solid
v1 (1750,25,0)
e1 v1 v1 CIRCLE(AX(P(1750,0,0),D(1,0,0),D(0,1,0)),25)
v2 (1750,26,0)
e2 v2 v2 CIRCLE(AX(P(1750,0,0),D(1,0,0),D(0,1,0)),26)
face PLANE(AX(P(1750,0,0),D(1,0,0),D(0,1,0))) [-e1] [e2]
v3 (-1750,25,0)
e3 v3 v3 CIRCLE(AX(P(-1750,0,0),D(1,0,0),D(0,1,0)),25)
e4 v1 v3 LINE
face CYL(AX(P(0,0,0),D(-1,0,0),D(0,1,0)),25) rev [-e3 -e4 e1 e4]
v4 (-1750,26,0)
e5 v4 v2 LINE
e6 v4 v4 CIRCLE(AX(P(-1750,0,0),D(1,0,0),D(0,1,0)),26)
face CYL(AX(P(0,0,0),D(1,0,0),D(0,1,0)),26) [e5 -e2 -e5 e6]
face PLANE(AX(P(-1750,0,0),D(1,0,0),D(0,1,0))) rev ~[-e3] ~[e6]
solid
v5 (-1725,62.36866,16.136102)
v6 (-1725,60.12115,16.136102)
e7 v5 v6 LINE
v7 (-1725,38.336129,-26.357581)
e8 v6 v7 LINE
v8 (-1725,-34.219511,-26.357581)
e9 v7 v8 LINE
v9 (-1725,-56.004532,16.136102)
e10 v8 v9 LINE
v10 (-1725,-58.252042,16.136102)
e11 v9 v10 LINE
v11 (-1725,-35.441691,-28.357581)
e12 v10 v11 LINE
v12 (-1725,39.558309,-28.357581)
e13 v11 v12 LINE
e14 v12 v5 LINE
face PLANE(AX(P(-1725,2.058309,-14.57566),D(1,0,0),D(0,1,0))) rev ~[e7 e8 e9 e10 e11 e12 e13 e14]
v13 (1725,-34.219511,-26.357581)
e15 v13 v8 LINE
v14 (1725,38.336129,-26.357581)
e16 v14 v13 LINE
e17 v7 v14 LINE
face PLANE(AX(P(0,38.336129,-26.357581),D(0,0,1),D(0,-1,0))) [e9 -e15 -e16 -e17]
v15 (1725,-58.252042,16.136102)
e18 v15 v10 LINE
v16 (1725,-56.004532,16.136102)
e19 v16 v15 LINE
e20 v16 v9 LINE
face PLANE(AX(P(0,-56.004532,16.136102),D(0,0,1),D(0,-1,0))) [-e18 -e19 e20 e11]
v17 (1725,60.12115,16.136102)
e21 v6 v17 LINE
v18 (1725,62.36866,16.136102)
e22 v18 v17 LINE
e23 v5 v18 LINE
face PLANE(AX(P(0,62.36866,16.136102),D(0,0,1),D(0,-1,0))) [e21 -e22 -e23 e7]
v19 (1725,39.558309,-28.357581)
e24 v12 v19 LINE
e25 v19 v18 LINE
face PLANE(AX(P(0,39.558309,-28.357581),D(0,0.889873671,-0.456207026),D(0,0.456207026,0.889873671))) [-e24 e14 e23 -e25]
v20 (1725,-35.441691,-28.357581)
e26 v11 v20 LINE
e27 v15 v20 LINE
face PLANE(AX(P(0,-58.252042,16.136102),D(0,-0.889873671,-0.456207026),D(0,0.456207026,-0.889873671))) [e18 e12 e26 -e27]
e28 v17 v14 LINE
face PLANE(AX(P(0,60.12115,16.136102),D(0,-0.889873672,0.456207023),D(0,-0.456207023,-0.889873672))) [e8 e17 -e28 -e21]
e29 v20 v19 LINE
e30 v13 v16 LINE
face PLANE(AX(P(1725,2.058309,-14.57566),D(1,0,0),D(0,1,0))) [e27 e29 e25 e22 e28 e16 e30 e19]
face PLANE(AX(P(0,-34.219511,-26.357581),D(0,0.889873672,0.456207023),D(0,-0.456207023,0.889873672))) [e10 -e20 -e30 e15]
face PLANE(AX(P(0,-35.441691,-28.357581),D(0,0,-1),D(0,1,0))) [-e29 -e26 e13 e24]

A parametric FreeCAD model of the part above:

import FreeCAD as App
import Part
import Sketcher

V = App.Vector

doc = App.newDocument("Part")
body = doc.addObject("PartDesign::Body", "Body")

# Sketch on YZ plane
sketch1 = doc.addObject("Sketcher::SketchObject", "Sketch")
body.addObject(sketch1)
sketch1.AttachmentSupport = (doc.YZ_Plane, [""])
sketch1.MapMode = "FlatFace"
sketch1.addGeometry([
    Part.LineSegment(V(-58.252042, 16.136102, 0), V(-35.441691, -28.357581, 0)),  # 0
    Part.LineSegment(V(-35.441691, -28.357581, 0), V(39.558309, -28.357581, 0)),  # 1
    Part.LineSegment(V(39.558309, -28.357581, 0), V(62.36866, 16.136102, 0)),  # 2
    Part.LineSegment(V(62.36866, 16.136102, 0), V(60.12115, 16.136102, 0)),  # 3
    Part.LineSegment(V(60.12115, 16.136102, 0), V(38.336129, -26.357581, 0)),  # 4
    Part.LineSegment(V(38.336129, -26.357581, 0), V(-34.219511, -26.357581, 0)),  # 5
    Part.LineSegment(V(-34.219511, -26.357581, 0), V(-56.004532, 16.136102, 0)),  # 6
    Part.LineSegment(V(-56.004532, 16.136102, 0), V(-58.252042, 16.136102, 0)),  # 7
], False)
sketch1.addConstraint([
    Sketcher.Constraint("Coincident", 0, 2, 1, 1),
    Sketcher.Constraint("Coincident", 1, 2, 2, 1),
    Sketcher.Constraint("Coincident", 2, 2, 3, 1),
    Sketcher.Constraint("Coincident", 3, 2, 4, 1),
    Sketcher.Constraint("Coincident", 4, 2, 5, 1),
    Sketcher.Constraint("Coincident", 5, 2, 6, 1),
    Sketcher.Constraint("Coincident", 6, 2, 7, 1),
    Sketcher.Constraint("Coincident", 7, 2, 0, 1),
    Sketcher.Constraint("Horizontal", 1),
    Sketcher.Constraint("Horizontal", 3),
    Sketcher.Constraint("Horizontal", 5),
    Sketcher.Constraint("Horizontal", 7),
    Sketcher.Constraint("Parallel", 2, 4),
    Sketcher.Constraint("Parallel", 0, 6),
    Sketcher.Constraint("Horizontal", 3, 2, 6, 2),
    Sketcher.Constraint("Equal", 3, 7),
    Sketcher.Constraint("Equal", 0, 2),
    Sketcher.Constraint("DistanceX", 1, 1, 1, 2, 75.0),
    Sketcher.Constraint("Distance", 0, 49.999999),
    Sketcher.Constraint("DistanceY", 1, 2, 4, 2, 2.0),
    Sketcher.Constraint("DistanceX", 3, 2, 3, 1, 2.24751),
    Sketcher.Constraint("DistanceX", 5, 2, 5, 1, 72.55564),
    Sketcher.Constraint("DistanceX", 0, 2, -1, 1, 35.441691),
    Sketcher.Constraint("DistanceY", 0, 2, -1, 1, 28.357581),
])
pad1 = doc.addObject("PartDesign::Pad", "Pad")
body.addObject(pad1)
pad1.Profile = sketch1
pad1.Length = 3450
pad1.Midplane = True
body2 = doc.addObject("PartDesign::Body", "Body001")

# Sketch on YZ plane
sketch2 = doc.addObject("Sketcher::SketchObject", "Sketch001")
body2.addObject(sketch2)
sketch2.AttachmentSupport = (doc.getObject("YZ_Plane001"), [""])
sketch2.MapMode = "FlatFace"
sketch2.addGeometry([
    Part.Circle(V(0, 0, 0), V(0, 0, 1), 26),
    Part.Circle(V(0, 0, 0), V(0, 0, 1), 25),
], False)
sketch2.addConstraint([
    Sketcher.Constraint("Coincident", 0, 3, -1, 1),
    Sketcher.Constraint("Coincident", 1, 3, -1, 1),
    Sketcher.Constraint("Diameter", 0, 52.0),
    Sketcher.Constraint("Diameter", 1, 50.0),
])
pad2 = doc.addObject("PartDesign::Pad", "Pad001")
body2.addObject(pad2)
pad2.Profile = sketch2
pad2.Length = 3500
pad2.Midplane = True

doc.recompute()
